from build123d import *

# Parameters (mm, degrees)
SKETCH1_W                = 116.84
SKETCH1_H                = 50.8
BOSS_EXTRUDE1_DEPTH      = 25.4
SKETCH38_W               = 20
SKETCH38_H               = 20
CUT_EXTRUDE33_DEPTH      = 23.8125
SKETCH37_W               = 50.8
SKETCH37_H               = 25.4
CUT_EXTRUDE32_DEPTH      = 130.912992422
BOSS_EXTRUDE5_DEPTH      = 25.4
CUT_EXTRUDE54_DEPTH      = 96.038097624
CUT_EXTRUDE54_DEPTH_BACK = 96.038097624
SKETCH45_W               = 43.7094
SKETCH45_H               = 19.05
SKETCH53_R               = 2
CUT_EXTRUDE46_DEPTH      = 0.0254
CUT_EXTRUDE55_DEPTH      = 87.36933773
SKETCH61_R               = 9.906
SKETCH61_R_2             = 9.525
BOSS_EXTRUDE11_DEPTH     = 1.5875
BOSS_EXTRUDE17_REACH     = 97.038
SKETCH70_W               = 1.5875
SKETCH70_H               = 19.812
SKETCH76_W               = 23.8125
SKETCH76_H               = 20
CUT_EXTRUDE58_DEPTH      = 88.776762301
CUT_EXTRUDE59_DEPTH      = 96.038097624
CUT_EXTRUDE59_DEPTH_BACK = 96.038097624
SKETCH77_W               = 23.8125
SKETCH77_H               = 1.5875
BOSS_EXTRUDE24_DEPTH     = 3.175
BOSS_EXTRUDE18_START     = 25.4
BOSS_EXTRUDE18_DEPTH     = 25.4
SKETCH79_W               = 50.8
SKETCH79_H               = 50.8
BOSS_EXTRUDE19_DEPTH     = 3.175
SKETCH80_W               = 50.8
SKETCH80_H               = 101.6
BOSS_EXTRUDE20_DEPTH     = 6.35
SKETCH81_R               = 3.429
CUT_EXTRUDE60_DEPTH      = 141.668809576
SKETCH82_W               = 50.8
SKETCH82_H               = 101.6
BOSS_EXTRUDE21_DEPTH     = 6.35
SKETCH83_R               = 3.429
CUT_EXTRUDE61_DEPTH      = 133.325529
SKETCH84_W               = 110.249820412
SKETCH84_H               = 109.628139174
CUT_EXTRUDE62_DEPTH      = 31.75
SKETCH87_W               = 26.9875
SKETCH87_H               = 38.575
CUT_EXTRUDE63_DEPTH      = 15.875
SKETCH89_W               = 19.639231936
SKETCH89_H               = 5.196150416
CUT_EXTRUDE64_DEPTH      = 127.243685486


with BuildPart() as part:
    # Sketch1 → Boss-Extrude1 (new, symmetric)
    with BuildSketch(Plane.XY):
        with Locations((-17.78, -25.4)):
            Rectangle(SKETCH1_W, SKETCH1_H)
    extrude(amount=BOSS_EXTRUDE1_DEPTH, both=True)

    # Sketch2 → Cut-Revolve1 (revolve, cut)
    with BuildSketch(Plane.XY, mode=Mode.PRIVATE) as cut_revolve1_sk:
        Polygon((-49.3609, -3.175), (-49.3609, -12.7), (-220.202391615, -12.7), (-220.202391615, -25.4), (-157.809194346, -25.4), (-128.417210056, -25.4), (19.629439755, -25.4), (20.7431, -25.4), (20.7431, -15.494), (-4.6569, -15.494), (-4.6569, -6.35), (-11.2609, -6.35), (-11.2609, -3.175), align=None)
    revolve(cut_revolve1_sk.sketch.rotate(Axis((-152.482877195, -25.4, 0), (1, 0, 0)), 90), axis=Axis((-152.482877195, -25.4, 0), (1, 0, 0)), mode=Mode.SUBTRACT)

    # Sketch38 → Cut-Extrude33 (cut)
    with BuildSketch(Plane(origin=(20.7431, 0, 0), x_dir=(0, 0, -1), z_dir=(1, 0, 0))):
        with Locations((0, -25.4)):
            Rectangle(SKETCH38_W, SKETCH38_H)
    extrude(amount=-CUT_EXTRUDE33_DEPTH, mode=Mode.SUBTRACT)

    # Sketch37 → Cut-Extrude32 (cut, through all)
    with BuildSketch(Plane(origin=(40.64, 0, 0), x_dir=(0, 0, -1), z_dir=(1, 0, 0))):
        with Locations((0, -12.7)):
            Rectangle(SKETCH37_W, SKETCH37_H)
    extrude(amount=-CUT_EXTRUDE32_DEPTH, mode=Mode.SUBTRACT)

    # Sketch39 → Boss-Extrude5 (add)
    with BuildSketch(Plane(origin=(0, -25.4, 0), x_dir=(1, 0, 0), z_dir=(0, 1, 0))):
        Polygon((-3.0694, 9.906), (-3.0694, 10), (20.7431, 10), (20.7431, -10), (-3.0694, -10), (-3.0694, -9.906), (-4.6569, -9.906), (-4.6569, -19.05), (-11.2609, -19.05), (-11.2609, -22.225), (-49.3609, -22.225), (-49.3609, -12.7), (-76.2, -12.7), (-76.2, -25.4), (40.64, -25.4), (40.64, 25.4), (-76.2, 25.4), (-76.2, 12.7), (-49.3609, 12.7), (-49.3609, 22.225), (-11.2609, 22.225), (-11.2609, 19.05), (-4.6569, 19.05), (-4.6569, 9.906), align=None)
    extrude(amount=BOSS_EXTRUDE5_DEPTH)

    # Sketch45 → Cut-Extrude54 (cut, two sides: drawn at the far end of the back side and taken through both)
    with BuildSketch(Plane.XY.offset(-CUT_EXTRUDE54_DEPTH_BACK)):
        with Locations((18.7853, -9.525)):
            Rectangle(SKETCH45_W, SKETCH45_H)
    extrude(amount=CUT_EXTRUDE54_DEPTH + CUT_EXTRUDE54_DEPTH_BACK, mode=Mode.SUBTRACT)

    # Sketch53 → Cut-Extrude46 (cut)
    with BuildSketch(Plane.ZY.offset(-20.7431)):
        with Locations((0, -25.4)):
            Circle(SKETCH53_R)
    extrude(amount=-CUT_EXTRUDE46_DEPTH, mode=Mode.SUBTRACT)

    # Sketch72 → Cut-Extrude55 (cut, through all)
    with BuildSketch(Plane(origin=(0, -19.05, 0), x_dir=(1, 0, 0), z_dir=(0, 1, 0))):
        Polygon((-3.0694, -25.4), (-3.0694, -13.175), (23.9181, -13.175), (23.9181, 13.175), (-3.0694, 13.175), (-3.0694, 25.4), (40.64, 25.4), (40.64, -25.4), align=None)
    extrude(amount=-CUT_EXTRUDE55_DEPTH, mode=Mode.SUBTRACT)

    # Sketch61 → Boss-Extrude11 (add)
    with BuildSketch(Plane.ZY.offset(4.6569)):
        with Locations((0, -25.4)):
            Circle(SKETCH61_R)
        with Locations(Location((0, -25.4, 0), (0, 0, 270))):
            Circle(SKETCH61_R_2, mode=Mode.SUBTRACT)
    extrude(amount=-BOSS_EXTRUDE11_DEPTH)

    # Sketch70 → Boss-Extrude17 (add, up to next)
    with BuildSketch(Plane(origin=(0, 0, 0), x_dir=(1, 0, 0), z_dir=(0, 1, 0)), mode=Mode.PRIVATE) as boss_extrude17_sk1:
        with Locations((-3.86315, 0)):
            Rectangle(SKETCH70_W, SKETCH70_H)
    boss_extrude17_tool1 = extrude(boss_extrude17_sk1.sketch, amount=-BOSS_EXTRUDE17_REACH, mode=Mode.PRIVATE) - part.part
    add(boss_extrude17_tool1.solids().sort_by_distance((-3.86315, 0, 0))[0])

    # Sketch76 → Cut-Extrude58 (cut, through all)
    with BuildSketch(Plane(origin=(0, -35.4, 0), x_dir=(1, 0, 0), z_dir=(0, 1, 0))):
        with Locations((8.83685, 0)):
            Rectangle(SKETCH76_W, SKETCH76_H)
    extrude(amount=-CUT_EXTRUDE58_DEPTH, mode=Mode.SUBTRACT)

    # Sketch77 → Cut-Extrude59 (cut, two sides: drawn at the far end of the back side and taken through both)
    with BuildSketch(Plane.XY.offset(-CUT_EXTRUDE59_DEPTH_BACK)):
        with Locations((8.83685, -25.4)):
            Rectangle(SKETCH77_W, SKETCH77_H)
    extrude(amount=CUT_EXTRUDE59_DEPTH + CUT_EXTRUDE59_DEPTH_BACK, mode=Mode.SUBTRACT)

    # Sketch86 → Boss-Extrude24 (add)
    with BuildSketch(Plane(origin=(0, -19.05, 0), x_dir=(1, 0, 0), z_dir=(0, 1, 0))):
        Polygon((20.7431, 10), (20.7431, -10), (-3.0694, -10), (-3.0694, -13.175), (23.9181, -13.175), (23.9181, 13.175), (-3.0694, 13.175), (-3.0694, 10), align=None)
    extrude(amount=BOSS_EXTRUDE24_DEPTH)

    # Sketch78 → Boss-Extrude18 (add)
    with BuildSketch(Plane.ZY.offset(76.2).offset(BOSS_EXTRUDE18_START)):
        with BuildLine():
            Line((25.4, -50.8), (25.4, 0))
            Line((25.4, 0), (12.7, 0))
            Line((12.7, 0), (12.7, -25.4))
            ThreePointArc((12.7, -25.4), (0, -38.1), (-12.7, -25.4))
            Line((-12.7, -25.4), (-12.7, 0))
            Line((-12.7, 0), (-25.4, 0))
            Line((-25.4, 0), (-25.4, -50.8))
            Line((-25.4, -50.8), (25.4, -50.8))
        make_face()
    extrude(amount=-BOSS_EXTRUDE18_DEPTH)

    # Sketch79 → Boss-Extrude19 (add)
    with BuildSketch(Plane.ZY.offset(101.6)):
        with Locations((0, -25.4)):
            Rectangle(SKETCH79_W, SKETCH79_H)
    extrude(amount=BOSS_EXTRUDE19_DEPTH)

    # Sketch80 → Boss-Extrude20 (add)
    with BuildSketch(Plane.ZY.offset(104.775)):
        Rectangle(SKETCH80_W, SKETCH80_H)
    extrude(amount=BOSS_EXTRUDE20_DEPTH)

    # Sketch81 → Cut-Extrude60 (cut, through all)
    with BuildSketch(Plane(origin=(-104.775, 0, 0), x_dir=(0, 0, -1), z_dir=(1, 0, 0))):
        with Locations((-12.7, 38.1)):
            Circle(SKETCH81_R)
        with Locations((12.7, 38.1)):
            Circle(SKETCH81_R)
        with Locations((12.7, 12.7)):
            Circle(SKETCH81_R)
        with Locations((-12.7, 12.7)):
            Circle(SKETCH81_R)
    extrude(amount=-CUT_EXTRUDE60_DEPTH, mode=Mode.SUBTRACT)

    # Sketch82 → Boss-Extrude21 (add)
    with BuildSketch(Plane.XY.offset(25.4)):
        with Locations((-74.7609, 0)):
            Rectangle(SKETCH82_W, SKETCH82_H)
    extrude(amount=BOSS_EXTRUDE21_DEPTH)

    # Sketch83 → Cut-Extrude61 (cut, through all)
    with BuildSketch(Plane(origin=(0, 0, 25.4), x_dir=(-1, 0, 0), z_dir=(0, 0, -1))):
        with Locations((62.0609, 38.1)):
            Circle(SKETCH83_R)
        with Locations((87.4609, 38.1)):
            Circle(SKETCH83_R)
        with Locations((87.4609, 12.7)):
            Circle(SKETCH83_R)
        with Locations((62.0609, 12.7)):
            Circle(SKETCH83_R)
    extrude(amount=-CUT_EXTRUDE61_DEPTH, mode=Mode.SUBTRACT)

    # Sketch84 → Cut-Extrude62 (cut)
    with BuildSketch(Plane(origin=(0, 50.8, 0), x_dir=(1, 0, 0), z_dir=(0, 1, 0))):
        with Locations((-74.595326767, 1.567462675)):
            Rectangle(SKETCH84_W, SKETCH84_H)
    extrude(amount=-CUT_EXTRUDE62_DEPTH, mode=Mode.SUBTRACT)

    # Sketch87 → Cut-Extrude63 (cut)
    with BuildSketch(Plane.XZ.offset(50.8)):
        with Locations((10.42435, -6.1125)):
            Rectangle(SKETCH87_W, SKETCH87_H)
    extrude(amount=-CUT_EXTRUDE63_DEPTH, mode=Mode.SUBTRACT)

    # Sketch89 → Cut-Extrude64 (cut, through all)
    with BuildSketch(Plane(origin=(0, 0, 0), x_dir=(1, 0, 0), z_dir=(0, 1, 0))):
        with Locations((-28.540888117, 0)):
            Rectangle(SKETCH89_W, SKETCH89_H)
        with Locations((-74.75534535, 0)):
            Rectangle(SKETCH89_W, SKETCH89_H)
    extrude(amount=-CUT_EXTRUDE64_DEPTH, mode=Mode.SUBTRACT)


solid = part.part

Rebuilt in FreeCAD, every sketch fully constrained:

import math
import FreeCAD as App
import Part
import Sketcher
Q = App.Units.Quantity


def add_polygon(sketch, points):
    """Adds a closed chain of lines whose ends are joined by coincident constraints."""
    first, n = sketch.GeometryCount, len(points)
    for a, b in zip(points, points[1:] + points[:1]):
        sketch.addGeometry(Part.LineSegment(App.Vector(*a, 0), App.Vector(*b, 0)), False)
    for i in range(n):
        sketch.addConstraint(Sketcher.Constraint("Coincident", first + i, 2, first + (i + 1) % n, 1))

doc = App.newDocument("Part")
body = doc.addObject("PartDesign::Body", "Body")

sketch1 = body.newObject("Sketcher::SketchObject", "Sketch")
sketch1.AttachmentSupport = (doc.getObject("XY_Plane"), [""])
sketch1.MapMode = "FlatFace"
add_polygon(sketch1, [(-76.2, 0), (-76.2, -50.8), (40.64, -50.8), (40.64, 0)])
sketch1.addConstraint([
    Sketcher.Constraint("Vertical", 0),
    Sketcher.Constraint("Horizontal", 1),
    Sketcher.Constraint("Vertical", 2),
    Sketcher.Constraint("Horizontal", 3),
    Sketcher.Constraint("PointOnObject", 2, 2, -1),
    Sketcher.Constraint("DistanceY", 0, 2, 0, 1, Q("2 in")),
    Sketcher.Constraint("DistanceX", 1, 1, 1, 2, Q("4.6 in")),
    Sketcher.Constraint("DistanceX", 0, 2, -1, 1, Q("3 in")),
])
pad1 = body.newObject("PartDesign::Pad", "Pad")
pad1.Profile = sketch1
pad1.Length = Q("2 in")
pad1.Midplane = True

sketch2 = body.newObject("Sketcher::SketchObject", "Sketch001")
sketch2.AttachmentSupport = (doc.getObject("XY_Plane"), [""])
sketch2.MapMode = "FlatFace"
add_polygon(sketch2, [(-49.3609, -3.175), (-49.3609, -12.7), (-220.202392, -12.7), (-220.202392, -25.4), (20.7431, -25.4), (20.7431, -15.494), (-4.6569, -15.494), (-4.6569, -6.35), (-11.2609, -6.35), (-11.2609, -3.175)])
sketch2.addGeometry(Part.LineSegment(App.Vector(-220.202392, -25.4, 0), App.Vector(20.7431, -25.4, 0)), True)
sketch2.addConstraint([
    Sketcher.Constraint("Vertical", 0),
    Sketcher.Constraint("Horizontal", 1),
    Sketcher.Constraint("Vertical", 2),
    Sketcher.Constraint("Horizontal", 3),
    Sketcher.Constraint("Vertical", 4),
    Sketcher.Constraint("Horizontal", 5),
    Sketcher.Constraint("Vertical", 6),
    Sketcher.Constraint("Horizontal", 7),
    Sketcher.Constraint("Vertical", 8),
    Sketcher.Constraint("Horizontal", 9),
    Sketcher.Constraint("Horizontal", 10),
    Sketcher.Constraint("Coincident", 10, 1, 2, 2),
    Sketcher.Constraint("Vertical", 4, 2, 10, 2),
    Sketcher.Constraint("DistanceX", 5, 2, 5, 1, Q("1 in")),
    Sketcher.Constraint("DistanceX", 9, 2, 9, 1, Q("1.5 in")),
    Sketcher.Constraint("DistanceY", 2, 2, 2, 1, Q("0.5 in")),
    Sketcher.Constraint("DistanceY", 2, 2, -1, 1, Q("1 in")),
    Sketcher.Constraint("DistanceX", 7, 2, 7, 1, Q("0.26 in")),
    Sketcher.Constraint("DistanceY", 4, 1, 4, 2, Q("0.39 in")),
    Sketcher.Constraint("DistanceY", 6, 1, 6, 2, Q("0.36 in")),
    Sketcher.Constraint("DistanceY", 0, 2, 0, 1, Q("0.375 in")),
    Sketcher.Constraint("DistanceX", 1, 2, 1, 1, Q("170.841492 mm")),
    Sketcher.Constraint("DistanceX", 0, 2, -1, 1, Q("49.3609 mm")),
])
groove = body.newObject("PartDesign::Groove", "Groove")
groove.Profile = sketch2
groove.ReferenceAxis = (sketch2, ["Axis0"])
groove.Angle = 360

sketch3 = body.newObject("Sketcher::SketchObject", "Sketch002")
sketch3.AttachmentSupport = (doc.getObject("YZ_Plane"), [""])
sketch3.MapMode = "FlatFace"
sketch3.AttachmentOffset = App.Placement(App.Vector(0, 0, 20.7431), App.Rotation())
add_polygon(sketch3, [(-15.4, 10), (-35.4, 10), (-35.4, -10), (-15.4, -10)])
sketch3.addConstraint([
    Sketcher.Constraint("Horizontal", 0),
    Sketcher.Constraint("Vertical", 1),
    Sketcher.Constraint("Horizontal", 2),
    Sketcher.Constraint("Vertical", 3),
    Sketcher.Constraint("Equal", 2, 1),
    Sketcher.Constraint("DistanceX", 0, 2, 0, 1, Q("20 mm")),
    Sketcher.Constraint("DistanceX", 0, 2, -1, 1, Q("35.4 mm")),
    Sketcher.Constraint("DistanceY", -1, 1, 0, 2, Q("10 mm")),
])
pocket1 = body.newObject("PartDesign::Pocket", "Pocket")
pocket1.Profile = sketch3
pocket1.Length = Q("0.9375 in")

sketch4 = body.newObject("Sketcher::SketchObject", "Sketch003")
sketch4.AttachmentSupport = (doc.getObject("YZ_Plane"), [""])
sketch4.MapMode = "FlatFace"
sketch4.AttachmentOffset = App.Placement(App.Vector(0, 0, 1.6 * 25.4), App.Rotation())
add_polygon(sketch4, [(0, 25.4), (-25.4, 25.4), (-25.4, -25.4), (0, -25.4)])
sketch4.addConstraint([
    Sketcher.Constraint("Horizontal", 0),
    Sketcher.Constraint("Vertical", 1),
    Sketcher.Constraint("Horizontal", 2),
    Sketcher.Constraint("Vertical", 3),
    Sketcher.Constraint("Symmetric", 2, 2, 3, 2, -1, 1),
    Sketcher.Constraint("DistanceX", 0, 2, 0, 1, Q("1 in")),
    Sketcher.Constraint("DistanceY", 1, 2, 1, 1, Q("2 in")),
])
pocket2 = body.newObject("PartDesign::Pocket", "Pocket001")
pocket2.Profile = sketch4
pocket2.Type = "ThroughAll"

sketch5 = body.newObject("Sketcher::SketchObject", "Sketch004")
sketch5.AttachmentSupport = (doc.getObject("XZ_Plane"), [""])
sketch5.MapMode = "FlatFace"
sketch5.AttachmentOffset = App.Placement(App.Vector(0, 0, 1 * 25.4), App.Rotation())
add_polygon(sketch5, [(-3.0694, -9.906), (-3.0694, -10), (20.7431, -10), (20.7431, 10), (-3.0694, 10), (-3.0694, 9.906), (-4.6569, 9.906), (-4.6569, 19.05), (-11.2609, 19.05), (-11.2609, 22.225), (-49.3609, 22.225), (-49.3609, 12.7), (-76.2, 12.7), (-76.2, 25.4), (40.64, 25.4), (40.64, -25.4), (-76.2, -25.4), (-76.2, -12.7), (-49.3609, -12.7), (-49.3609, -22.225), (-11.2609, -22.225), (-11.2609, -19.05), (-4.6569, -19.05), (-4.6569, -9.906)])
sketch5.addConstraint([
    Sketcher.Constraint("Vertical", 0),
    Sketcher.Constraint("Horizontal", 1),
    Sketcher.Constraint("Vertical", 2),
    Sketcher.Constraint("Horizontal", 3),
    Sketcher.Constraint("Vertical", 4),
    Sketcher.Constraint("Horizontal", 5),
    Sketcher.Constraint("Vertical", 6),
    Sketcher.Constraint("Horizontal", 7),
    Sketcher.Constraint("Vertical", 8),
    Sketcher.Constraint("Horizontal", 9),
    Sketcher.Constraint("Vertical", 10),
    Sketcher.Constraint("Horizontal", 11),
    Sketcher.Constraint("Vertical", 12),
    Sketcher.Constraint("Horizontal", 13),
    Sketcher.Constraint("Vertical", 14),
    Sketcher.Constraint("Horizontal", 15),
    Sketcher.Constraint("Vertical", 16),
    Sketcher.Constraint("Horizontal", 17),
    Sketcher.Constraint("Vertical", 18),
    Sketcher.Constraint("Horizontal", 19),
    Sketcher.Constraint("Vertical", 20),
    Sketcher.Constraint("Horizontal", 21),
    Sketcher.Constraint("Vertical", 22),
    Sketcher.Constraint("Horizontal", 23),
    Sketcher.Constraint("Symmetric", 0, 2, 3, 2, -1),
    Sketcher.Constraint("Symmetric", 12, 2, 15, 2, -1),
    Sketcher.Constraint("Symmetric", 10, 2, 17, 2, -1),
    Sketcher.Constraint("Symmetric", 8, 2, 19, 2, -1),
    Sketcher.Constraint("Symmetric", 6, 2, 21, 2, -1),
    Sketcher.Constraint("Equal", 0, 4),
    Sketcher.Constraint("DistanceY", 14, 2, 14, 1, Q("2 in")),
    Sketcher.Constraint("DistanceX", 9, 2, 9, 1, Q("1.5 in")),
    Sketcher.Constraint("DistanceX", 13, 1, 13, 2, Q("4.6 in")),
    Sketcher.Constraint("DistanceY", 12, 1, 12, 2, Q("0.5 in")),
    Sketcher.Constraint("DistanceX", 11, 2, -1, 1, Q("3 in")),
    Sketcher.Constraint("DistanceX", 5, 2, 2, 2, Q("1 in")),
    Sketcher.Constraint("DistanceX", 7, 2, 7, 1, Q("0.26 in")),
    Sketcher.Constraint("DistanceY", 6, 1, 6, 2, Q("0.36 in")),
    Sketcher.Constraint("DistanceX", 1, 1, 1, 2, Q("0.9375 in")),
    Sketcher.Constraint("DistanceY", 8, 1, 8, 2, Q("0.125 in")),
    Sketcher.Constraint("DistanceY", 10, 2, 10, 1, Q("0.375 in")),
    Sketcher.Constraint("DistanceX", 11, 2, 11, 1, Q("26.8391 mm")),
    Sketcher.Constraint("DistanceY", 0, 2, 0, 1, Q("0.094 mm")),
])
pad2 = body.newObject("PartDesign::Pad", "Pad001")
pad2.Profile = sketch5
pad2.Length = Q("1 in")
pad2.Reversed = True

sketch6 = body.newObject("Sketcher::SketchObject", "Sketch005")
sketch6.AttachmentSupport = (doc.getObject("XY_Plane"), [""])
sketch6.MapMode = "FlatFace"
add_polygon(sketch6, [(-3.0694, 0), (-3.0694, -19.05), (40.64, -19.05), (40.64, 0)])
sketch6.addConstraint([
    Sketcher.Constraint("Vertical", 0),
    Sketcher.Constraint("Horizontal", 1),
    Sketcher.Constraint("Vertical", 2),
    Sketcher.Constraint("Horizontal", 3),
    Sketcher.Constraint("PointOnObject", 2, 2, -1),
    Sketcher.Constraint("DistanceY", 0, 2, 0, 1, Q("0.75 in")),
    Sketcher.Constraint("DistanceX", -1, 1, 1, 2, Q("1.6 in")),
    Sketcher.Constraint("DistanceX", 1, 1, 1, 2, Q("43.7094 mm")),
])
pocket3 = body.newObject("PartDesign::Pocket", "Pocket002")
pocket3.Profile = sketch6
pocket3.Type = "ThroughAll"
pocket3.Midplane = True

sketch7 = body.newObject("Sketcher::SketchObject", "Sketch006")
sketch7.AttachmentSupport = (doc.getObject("YZ_Plane"), [""])
sketch7.MapMode = "FlatFace"
sketch7.AttachmentOffset = App.Placement(App.Vector(0, 0, 20.7431), App.Rotation())
sketch7.addGeometry(Part.Circle(App.Vector(-25.4, 0, 0), App.Vector(0, 0, 1), 2), False)
sketch7.addConstraint([
    Sketcher.Constraint("PointOnObject", 0, 3, -1),
    Sketcher.Constraint("DistanceX", 0, 3, -1, 1, Q("1 in")),
    Sketcher.Constraint("Diameter", 0, Q("4 mm")),
])
pocket4 = body.newObject("PartDesign::Pocket", "Pocket003")
pocket4.Profile = sketch7
pocket4.Length = Q("0.001 in")
pocket4.Reversed = True

sketch8 = body.newObject("Sketcher::SketchObject", "Sketch007")
sketch8.AttachmentSupport = (doc.getObject("XZ_Plane"), [""])
sketch8.MapMode = "FlatFace"
sketch8.AttachmentOffset = App.Placement(App.Vector(0, 0, 0.75 * 25.4), App.Rotation())
add_polygon(sketch8, [(-3.0694, 13.175), (-3.0694, 25.4), (40.64, 25.4), (40.64, -25.4), (-3.0694, -25.4), (-3.0694, -13.175), (23.9181, -13.175), (23.9181, 13.175)])
sketch8.addConstraint([
    Sketcher.Constraint("Vertical", 0),
    Sketcher.Constraint("Horizontal", 1),
    Sketcher.Constraint("Vertical", 2),
    Sketcher.Constraint("Horizontal", 3),
    Sketcher.Constraint("Vertical", 4),
    Sketcher.Constraint("Horizontal", 5),
    Sketcher.Constraint("Vertical", 6),
    Sketcher.Constraint("Horizontal", 7),
    Sketcher.Constraint("Symmetric", 0, 2, 3, 2, -1),
    Sketcher.Constraint("Equal", 0, 4),
    Sketcher.Constraint("DistanceY", 2, 2, 2, 1, Q("2 in")),
    Sketcher.Constraint("DistanceX", -1, 1, 1, 2, Q("1.6 in")),
    Sketcher.Constraint("DistanceX", 5, 1, 5, 2, Q("1.0625 in")),
    Sketcher.Constraint("DistanceX", 1, 1, 1, 2, Q("43.7094 mm")),
    Sketcher.Constraint("DistanceY", 0, 1, 0, 2, Q("12.225 mm")),
])
pocket5 = body.newObject("PartDesign::Pocket", "Pocket004")
pocket5.Profile = sketch8
pocket5.Type = "ThroughAll"
pocket5.Reversed = True

sketch9 = body.newObject("Sketcher::SketchObject", "Sketch008")
sketch9.AttachmentSupport = (doc.getObject("YZ_Plane"), [""])
sketch9.MapMode = "FlatFace"
sketch9.AttachmentOffset = App.Placement(App.Vector(0, 0, -4.6569), App.Rotation())
sketch9.addGeometry([
    Part.Circle(App.Vector(-25.4, 0, 0), App.Vector(0, 0, 1), 9.906),
    Part.Circle(App.Vector(-25.4, 0, 0), App.Vector(0, 0, 1), 9.525),
], False)
sketch9.addConstraint([
    Sketcher.Constraint("Coincident", 1, 3, 0, 3),
    Sketcher.Constraint("PointOnObject", 0, 3, -1),
    Sketcher.Constraint("Diameter", 0, Q("0.78 in")),
    Sketcher.Constraint("Diameter", 1, Q("0.75 in")),
    Sketcher.Constraint("DistanceX", 0, 3, -1, 1, Q("1 in")),
])
pad3 = body.newObject("PartDesign::Pad", "Pad002")
pad3.Profile = sketch9
pad3.Length = Q("0.0625 in")

sketch10 = body.newObject("Sketcher::SketchObject", "Sketch009")
sketch10.AttachmentSupport = (doc.getObject("XZ_Plane"), [""])
sketch10.MapMode = "FlatFace"
add_polygon(sketch10, [(-4.6569, -9.906), (-4.6569, 9.906), (-3.0694, 9.906), (-3.0694, -9.906)])
sketch10.addConstraint([
    Sketcher.Constraint("Vertical", 0),
    Sketcher.Constraint("Horizontal", 1),
    Sketcher.Constraint("Vertical", 2),
    Sketcher.Constraint("Horizontal", 3),
    Sketcher.Constraint("DistanceY", 0, 1, 0, 2, Q("0.78 in")),
    Sketcher.Constraint("DistanceX", 1, 1, 1, 2, Q("0.0625 in")),
    Sketcher.Constraint("DistanceY", -1, 1, 0, 2, Q("0.39 in")),
    Sketcher.Constraint("DistanceX", 0, 2, -1, 1, Q("4.6569 mm")),
])
pad4 = body.newObject("PartDesign::Pad", "Pad003")
pad4.Profile = sketch10
pad4.Type = "UpToFirst"

sketch11 = body.newObject("Sketcher::SketchObject", "Sketch010")
sketch11.AttachmentSupport = (doc.getObject("XZ_Plane"), [""])
sketch11.MapMode = "FlatFace"
sketch11.AttachmentOffset = App.Placement(App.Vector(0, 0, 35.4), App.Rotation())
add_polygon(sketch11, [(-3.0694, -10), (-3.0694, 10), (20.7431, 10), (20.7431, -10)])
sketch11.addConstraint([
    Sketcher.Constraint("Vertical", 0),
    Sketcher.Constraint("Horizontal", 1),
    Sketcher.Constraint("Vertical", 2),
    Sketcher.Constraint("Horizontal", 3),
    Sketcher.Constraint("DistanceX", 1, 1, 1, 2, Q("0.9375 in")),
    Sketcher.Constraint("DistanceY", 0, 1, 0, 2, Q("20 mm")),
    Sketcher.Constraint("DistanceX", 0, 2, -1, 1, Q("3.0694 mm")),
    Sketcher.Constraint("DistanceY", -1, 1, 0, 2, Q("10 mm")),
])
pocket6 = body.newObject("PartDesign::Pocket", "Pocket005")
pocket6.Profile = sketch11
pocket6.Type = "ThroughAll"
pocket6.Reversed = True

sketch12 = body.newObject("Sketcher::SketchObject", "Sketch011")
sketch12.AttachmentSupport = (doc.getObject("XY_Plane"), [""])
sketch12.MapMode = "FlatFace"
add_polygon(sketch12, [(-3.0694, -24.60625), (-3.0694, -26.19375), (20.7431, -26.19375), (20.7431, -24.60625)])
sketch12.addConstraint([
    Sketcher.Constraint("Vertical", 0),
    Sketcher.Constraint("Horizontal", 1),
    Sketcher.Constraint("Vertical", 2),
    Sketcher.Constraint("Horizontal", 3),
    Sketcher.Constraint("DistanceX", 1, 1, 1, 2, Q("0.9375 in")),
    Sketcher.Constraint("DistanceY", 0, 2, 0, 1, Q("0.0625 in")),
    Sketcher.Constraint("DistanceY", 0, 2, -1, 1, Q("1.03125 in")),
    Sketcher.Constraint("DistanceX", 0, 2, -1, 1, Q("3.0694 mm")),
])
pocket7 = body.newObject("PartDesign::Pocket", "Pocket006")
pocket7.Profile = sketch12
pocket7.Type = "ThroughAll"
pocket7.Midplane = True

sketch13 = body.newObject("Sketcher::SketchObject", "Sketch012")
sketch13.AttachmentSupport = (doc.getObject("XZ_Plane"), [""])
sketch13.MapMode = "FlatFace"
sketch13.AttachmentOffset = App.Placement(App.Vector(0, 0, 0.75 * 25.4), App.Rotation())
add_polygon(sketch13, [(20.7431, -10), (20.7431, 10), (-3.0694, 10), (-3.0694, 13.175), (23.9181, 13.175), (23.9181, -13.175), (-3.0694, -13.175), (-3.0694, -10)])
sketch13.addConstraint([
    Sketcher.Constraint("Vertical", 0),
    Sketcher.Constraint("Horizontal", 1),
    Sketcher.Constraint("Vertical", 2),
    Sketcher.Constraint("Horizontal", 3),
    Sketcher.Constraint("Vertical", 4),
    Sketcher.Constraint("Horizontal", 5),
    Sketcher.Constraint("Vertical", 6),
    Sketcher.Constraint("Horizontal", 7),
    Sketcher.Constraint("Symmetric", 2, 2, 5, 2, -1),
    Sketcher.Constraint("Equal", 2, 6),
    Sketcher.Constraint("DistanceX", 1, 2, 1, 1, Q("0.9375 in")),
    Sketcher.Constraint("DistanceX", 3, 1, 3, 2, Q("1.0625 in")),
    Sketcher.Constraint("DistanceY", 2, 1, 2, 2, Q("0.125 in")),
    Sketcher.Constraint("DistanceY", 0, 1, 0, 2, Q("20 mm")),
    Sketcher.Constraint("DistanceX", -1, 1, 0, 2, Q("20.7431 mm")),
])
pad5 = body.newObject("PartDesign::Pad", "Pad004")
pad5.Profile = sketch13
pad5.Length = Q("0.125 in")
pad5.Reversed = True

sketch14 = body.newObject("Sketcher::SketchObject", "Sketch013")
sketch14.AttachmentSupport = (doc.getObject("YZ_Plane"), [""])
sketch14.MapMode = "FlatFace"
sketch14.AttachmentOffset = App.Placement(App.Vector(0, 0, -4 * 25.4), App.Rotation())
sketch14.addGeometry([
    Part.LineSegment(App.Vector(-50.8, 25.4, 0), App.Vector(0, 25.4, 0)),
    Part.LineSegment(App.Vector(0, 25.4, 0), App.Vector(0, 12.7, 0)),
    Part.LineSegment(App.Vector(0, 12.7, 0), App.Vector(-25.4, 12.7, 0)),
    Part.ArcOfCircle(Part.Circle(App.Vector(-25.4, 0, 0), App.Vector(0, 0, 1), 12.7), math.radians(90), math.radians(270)),
    Part.LineSegment(App.Vector(-25.4, -12.7, 0), App.Vector(0, -12.7, 0)),
    Part.LineSegment(App.Vector(0, -12.7, 0), App.Vector(0, -25.4, 0)),
    Part.LineSegment(App.Vector(0, -25.4, 0), App.Vector(-50.8, -25.4, 0)),
    Part.LineSegment(App.Vector(-50.8, -25.4, 0), App.Vector(-50.8, 25.4, 0)),
], False)
sketch14.addConstraint([
    Sketcher.Constraint("Coincident", 0, 2, 1, 1),
    Sketcher.Constraint("Coincident", 1, 2, 2, 1),
    Sketcher.Constraint("Tangent", 2, 2, 3, 1),
    Sketcher.Constraint("Tangent", 3, 2, 4, 1),
    Sketcher.Constraint("Coincident", 4, 2, 5, 1),
    Sketcher.Constraint("Coincident", 5, 2, 6, 1),
    Sketcher.Constraint("Coincident", 6, 2, 7, 1),
    Sketcher.Constraint("Coincident", 7, 2, 0, 1),
    Sketcher.Constraint("Horizontal", 0),
    Sketcher.Constraint("Vertical", 1),
    Sketcher.Constraint("Horizontal", 2),
    Sketcher.Constraint("Horizontal", 4),
    Sketcher.Constraint("Vertical", 5),
    Sketcher.Constraint("Horizontal", 6),
    Sketcher.Constraint("Vertical", 7),
    Sketcher.Constraint("Symmetric", 1, 2, 4, 2, -1, 1),
    Sketcher.Constraint("Symmetric", 0, 2, 5, 2, -1),
    Sketcher.Constraint("Equal", 6, 7),
    Sketcher.Constraint("Radius", 3, Q("0.5 in")),
    Sketcher.Constraint("DistanceX", 0, 1, 0, 2, Q("2 in")),
    Sketcher.Constraint("DistanceX", 2, 2, 2, 1, Q("1 in")),
])
pad6 = body.newObject("PartDesign::Pad", "Pad005")
pad6.Profile = sketch14
pad6.Length = Q("1 in")

sketch15 = body.newObject("Sketcher::SketchObject", "Sketch014")
sketch15.AttachmentSupport = (doc.getObject("YZ_Plane"), [""])
sketch15.MapMode = "FlatFace"
sketch15.AttachmentOffset = App.Placement(App.Vector(0, 0, -4 * 25.4), App.Rotation())
add_polygon(sketch15, [(0, -25.4), (-50.8, -25.4), (-50.8, 25.4), (0, 25.4)])
sketch15.addConstraint([
    Sketcher.Constraint("Horizontal", 0),
    Sketcher.Constraint("Vertical", 1),
    Sketcher.Constraint("Horizontal", 2),
    Sketcher.Constraint("Vertical", 3),
    Sketcher.Constraint("Symmetric", 2, 2, 3, 2, -1, 1),
    Sketcher.Constraint("Equal", 2, 1),
    Sketcher.Constraint("DistanceX", 0, 2, 0, 1, Q("2 in")),
])
pad7 = body.newObject("PartDesign::Pad", "Pad006")
pad7.Profile = sketch15
pad7.Length = Q("0.125 in")
pad7.Reversed = True

sketch16 = body.newObject("Sketcher::SketchObject", "Sketch015")
sketch16.AttachmentSupport = (doc.getObject("YZ_Plane"), [""])
sketch16.MapMode = "FlatFace"
sketch16.AttachmentOffset = App.Placement(App.Vector(0, 0, -4.125 * 25.4), App.Rotation())
add_polygon(sketch16, [(50.8, -25.4), (-50.8, -25.4), (-50.8, 25.4), (50.8, 25.4)])
sketch16.addConstraint([
    Sketcher.Constraint("Horizontal", 0),
    Sketcher.Constraint("Vertical", 1),
    Sketcher.Constraint("Horizontal", 2),
    Sketcher.Constraint("Vertical", 3),
    Sketcher.Constraint("Symmetric", 0, 2, 2, 2, -1, 1),
    Sketcher.Constraint("DistanceX", 0, 2, 0, 1, Q("4 in")),
    Sketcher.Constraint("DistanceY", 1, 1, 1, 2, Q("2 in")),
])
pad8 = body.newObject("PartDesign::Pad", "Pad007")
pad8.Profile = sketch16
pad8.Length = Q("0.25 in")
pad8.Reversed = True

sketch17 = body.newObject("Sketcher::SketchObject", "Sketch016")
sketch17.AttachmentSupport = (doc.getObject("YZ_Plane"), [""])
sketch17.MapMode = "FlatFace"
sketch17.AttachmentOffset = App.Placement(App.Vector(0, 0, -4.125 * 25.4), App.Rotation())
sketch17.addGeometry([
    Part.Circle(App.Vector(38.1, 12.7, 0), App.Vector(0, 0, 1), 3.429),
    Part.Circle(App.Vector(38.1, -12.7, 0), App.Vector(0, 0, 1), 3.429),
    Part.Circle(App.Vector(12.7, -12.7, 0), App.Vector(0, 0, 1), 3.429),
    Part.Circle(App.Vector(12.7, 12.7, 0), App.Vector(0, 0, 1), 3.429),
], False)
sketch17.addConstraint([
    Sketcher.Constraint("Equal", 0, 1),
    Sketcher.Constraint("Equal", 1, 2),
    Sketcher.Constraint("Equal", 2, 3),
    Sketcher.Constraint("Symmetric", 0, 3, 1, 3, -1),
    Sketcher.Constraint("Symmetric", 2, 3, 3, 3, -1),
    Sketcher.Constraint("Horizontal", 1, 3, 2, 3),
    Sketcher.Constraint("Diameter", 0, Q("0.27 in")),
    Sketcher.Constraint("DistanceY", 1, 3, 0, 3, Q("1 in")),
    Sketcher.Constraint("DistanceX", 2, 3, 1, 3, Q("1 in")),
    Sketcher.Constraint("DistanceX", -1, 1, 0, 3, Q("1.5 in")),
])
pocket8 = body.newObject("PartDesign::Pocket", "Pocket007")
pocket8.Profile = sketch17
pocket8.Type = "ThroughAll"

sketch18 = body.newObject("Sketcher::SketchObject", "Sketch017")
sketch18.AttachmentSupport = (doc.getObject("XY_Plane"), [""])
sketch18.MapMode = "FlatFace"
sketch18.AttachmentOffset = App.Placement(App.Vector(0, 0, 1 * 25.4), App.Rotation())
add_polygon(sketch18, [(-100.1609, 50.8), (-100.1609, -50.8), (-49.3609, -50.8), (-49.3609, 50.8)])
sketch18.addConstraint([
    Sketcher.Constraint("Vertical", 0),
    Sketcher.Constraint("Horizontal", 1),
    Sketcher.Constraint("Vertical", 2),
    Sketcher.Constraint("Horizontal", 3),
    Sketcher.Constraint("DistanceX", 1, 1, 1, 2, Q("2 in")),
    Sketcher.Constraint("DistanceY", 0, 2, 0, 1, Q("4 in")),
    Sketcher.Constraint("DistanceY", 0, 2, -1, 1, Q("2 in")),
    Sketcher.Constraint("DistanceX", 0, 2, -1, 1, Q("100.1609 mm")),
])
pad9 = body.newObject("PartDesign::Pad", "Pad008")
pad9.Profile = sketch18
pad9.Length = Q("0.25 in")

sketch19 = body.newObject("Sketcher::SketchObject", "Sketch018")
sketch19.AttachmentSupport = (doc.getObject("XY_Plane"), [""])
sketch19.MapMode = "FlatFace"
sketch19.AttachmentOffset = App.Placement(App.Vector(0, 0, 1 * 25.4), App.Rotation())
sketch19.addGeometry([
    Part.Circle(App.Vector(-62.0609, 38.1, 0), App.Vector(0, 0, 1), 3.429),
    Part.Circle(App.Vector(-87.4609, 38.1, 0), App.Vector(0, 0, 1), 3.429),
    Part.Circle(App.Vector(-87.4609, 12.7, 0), App.Vector(0, 0, 1), 3.429),
    Part.Circle(App.Vector(-62.0609, 12.7, 0), App.Vector(0, 0, 1), 3.429),
], False)
sketch19.addConstraint([
    Sketcher.Constraint("Equal", 0, 1),
    Sketcher.Constraint("Equal", 1, 2),
    Sketcher.Constraint("Equal", 2, 3),
    Sketcher.Constraint("Horizontal", 0, 3, 1, 3),
    Sketcher.Constraint("Horizontal", 2, 3, 3, 3),
    Sketcher.Constraint("Vertical", 1, 3, 2, 3),
    Sketcher.Constraint("Vertical", 0, 3, 3, 3),
    Sketcher.Constraint("Diameter", 0, Q("0.27 in")),
    Sketcher.Constraint("DistanceX", 1, 3, 0, 3, Q("1 in")),
    Sketcher.Constraint("DistanceY", 2, 3, 1, 3, Q("1 in")),
    Sketcher.Constraint("DistanceY", -1, 1, 0, 3, Q("1.5 in")),
    Sketcher.Constraint("DistanceX", 0, 3, -1, 1, Q("62.0609 mm")),
])
pocket9 = body.newObject("PartDesign::Pocket", "Pocket008")
pocket9.Profile = sketch19
pocket9.Type = "ThroughAll"
pocket9.Reversed = True

sketch20 = body.newObject("Sketcher::SketchObject", "Sketch019")
sketch20.AttachmentSupport = (doc.getObject("XZ_Plane"), [""])
sketch20.MapMode = "FlatFace"
sketch20.AttachmentOffset = App.Placement(App.Vector(0, 0, -2 * 25.4), App.Rotation())
add_polygon(sketch20, [(-129.720237, -56.381532), (-129.720237, 53.246607), (-19.470417, 53.246607), (-19.470417, -56.381532)])
sketch20.addConstraint([
    Sketcher.Constraint("Vertical", 0),
    Sketcher.Constraint("Horizontal", 1),
    Sketcher.Constraint("Vertical", 2),
    Sketcher.Constraint("Horizontal", 3),
    Sketcher.Constraint("DistanceX", 1, 1, 1, 2, Q("110.24982 mm")),
    Sketcher.Constraint("DistanceY", 0, 1, 0, 2, Q("109.628139 mm")),
    Sketcher.Constraint("DistanceX", 0, 2, -1, 1, Q("129.720237 mm")),
    Sketcher.Constraint("DistanceY", -1, 1, 0, 2, Q("53.246607 mm")),
])
pocket10 = body.newObject("PartDesign::Pocket", "Pocket009")
pocket10.Profile = sketch20
pocket10.Length = Q("1.25 in")
pocket10.Reversed = True

sketch21 = body.newObject("Sketcher::SketchObject", "Sketch020")
sketch21.AttachmentSupport = (doc.getObject("XZ_Plane"), [""])
sketch21.MapMode = "FlatFace"
sketch21.AttachmentOffset = App.Placement(App.Vector(0, 0, 2 * 25.4), App.Rotation())
add_polygon(sketch21, [(-3.0694, 13.175), (-3.0694, -25.4), (23.9181, -25.4), (23.9181, 13.175)])
sketch21.addConstraint([
    Sketcher.Constraint("Vertical", 0),
    Sketcher.Constraint("Horizontal", 1),
    Sketcher.Constraint("Vertical", 2),
    Sketcher.Constraint("Horizontal", 3),
    Sketcher.Constraint("DistanceY", 0, 2, -1, 1, Q("1 in")),
    Sketcher.Constraint("DistanceX", 1, 1, 1, 2, Q("1.0625 in")),
    Sketcher.Constraint("DistanceY", 0, 2, 0, 1, Q("38.575 mm")),
    Sketcher.Constraint("DistanceX", 0, 2, -1, 1, Q("3.0694 mm")),
])
pocket11 = body.newObject("PartDesign::Pocket", "Pocket010")
pocket11.Profile = sketch21
pocket11.Length = Q("0.625 in")

sketch22 = body.newObject("Sketcher::SketchObject", "Sketch021")
sketch22.AttachmentSupport = (doc.getObject("XZ_Plane"), [""])
sketch22.MapMode = "FlatFace"
add_polygon(sketch22, [(-38.360504, -2.598075), (-38.360504, 2.598075), (-18.721272, 2.598075), (-18.721272, -2.598075)])
add_polygon(sketch22, [(-84.574961, -2.598075), (-84.574961, 2.598075), (-64.935729, 2.598075), (-64.935729, -2.598075)])
sketch22.addConstraint([
    Sketcher.Constraint("Vertical", 0),
    Sketcher.Constraint("Horizontal", 1),
    Sketcher.Constraint("Vertical", 2),
    Sketcher.Constraint("Horizontal", 3),
    Sketcher.Constraint("Vertical", 4),
    Sketcher.Constraint("Horizontal", 5),
    Sketcher.Constraint("Vertical", 6),
    Sketcher.Constraint("Horizontal", 7),
    Sketcher.Constraint("Horizontal", 1, 2, 4, 2),
    Sketcher.Constraint("Horizontal", 3, 2, 6, 2),
    Sketcher.Constraint("Equal", 3, 5),
    Sketcher.Constraint("DistanceX", 1, 1, 1, 2, Q("19.639232 mm")),
    Sketcher.Constraint("DistanceY", 0, 1, 0, 2, Q("5.19615 mm")),
    Sketcher.Constraint("DistanceX", 4, 2, -1, 1, Q("84.574961 mm")),
    Sketcher.Constraint("DistanceX", 4, 2, 1, 2, Q("65.853689 mm")),
    Sketcher.Constraint("DistanceY", -1, 1, 0, 2, Q("2.598075 mm")),
])
pocket12 = body.newObject("PartDesign::Pocket", "Pocket011")
pocket12.Profile = sketch22
pocket12.Type = "ThroughAll"
pocket12.Reversed = True

doc.recompute()
